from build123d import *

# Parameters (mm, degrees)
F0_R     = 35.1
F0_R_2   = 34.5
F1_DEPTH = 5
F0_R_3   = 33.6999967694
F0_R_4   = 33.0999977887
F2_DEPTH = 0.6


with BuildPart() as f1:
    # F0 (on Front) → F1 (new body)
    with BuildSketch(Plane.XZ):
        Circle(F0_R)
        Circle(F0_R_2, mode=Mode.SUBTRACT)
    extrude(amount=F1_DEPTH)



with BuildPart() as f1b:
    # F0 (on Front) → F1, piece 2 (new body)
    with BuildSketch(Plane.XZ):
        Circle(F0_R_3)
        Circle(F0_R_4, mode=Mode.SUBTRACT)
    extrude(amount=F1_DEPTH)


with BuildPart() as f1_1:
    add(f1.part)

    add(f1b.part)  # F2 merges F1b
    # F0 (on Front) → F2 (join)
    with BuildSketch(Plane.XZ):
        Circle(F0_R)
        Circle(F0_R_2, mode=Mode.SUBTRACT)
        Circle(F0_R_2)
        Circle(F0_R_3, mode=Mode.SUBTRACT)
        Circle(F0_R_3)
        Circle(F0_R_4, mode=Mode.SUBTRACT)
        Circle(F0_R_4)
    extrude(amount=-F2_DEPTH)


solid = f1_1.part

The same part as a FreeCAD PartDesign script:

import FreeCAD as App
import Part
import Sketcher

V = App.Vector
Q = App.Units.Quantity

doc = App.newDocument("Part")
body = doc.addObject("PartDesign::Body", "Body")

# Sketch on XZ plane
sketch1 = body.newObject("Sketcher::SketchObject", "Sketch")
sketch1.AttachmentSupport = (doc.getObject("XZ_Plane"), [""])
sketch1.MapMode = "FlatFace"
sketch1.addGeometry([
    Part.Circle(V(0, 0, 0), V(0, 0, 1), 35),
    Part.Circle(V(0, 0, 0), V(0, 0, 1), 34),
], False)
sketch1.addConstraint([
    Sketcher.Constraint("Coincident", 0, 3, -1, 1),
    Sketcher.Constraint("Coincident", 1, 3, -1, 1),
    Sketcher.Constraint("Diameter", 1, Q("69 mm")),
    Sketcher.Constraint("Diameter", 0, Q("70.2 mm")),
])
pad1 = body.newObject("PartDesign::Pad", "Pad")
pad1.Profile = sketch1
pad1.Length = 5
body2 = doc.addObject("PartDesign::Body", "Body001")

# Sketch on XZ plane
sketch2 = body2.newObject("Sketcher::SketchObject", "Sketch001")
sketch2.AttachmentSupport = (doc.getObject("XZ_Plane001"), [""])
sketch2.MapMode = "FlatFace"
sketch2.addGeometry([
    Part.Circle(V(0, 0, 0), V(0, 0, 1), 34),
    Part.Circle(V(0, 0, 0), V(0, 0, 1), 33),
], False)
sketch2.addConstraint([
    Sketcher.Constraint("Coincident", 0, 3, -1, 1),
    Sketcher.Constraint("Coincident", 1, 3, -1, 1),
    Sketcher.Constraint("Diameter", 0, Q("67.399994 mm")),
    Sketcher.Constraint("Diameter", 1, Q("66.199996 mm")),
])
pad2 = body2.newObject("PartDesign::Pad", "Pad001")
pad2.Profile = sketch2
pad2.Length = 5
body.AllowCompound = True
doc.recompute()

boolean = body.newObject("PartDesign::Boolean", "Boolean")
boolean.Type = "Fuse"
boolean.addObjects([body2])

# Sketch on XZ plane
sketch3 = body.newObject("Sketcher::SketchObject", "Sketch002")
sketch3.AttachmentSupport = (doc.getObject("XZ_Plane"), [""])
sketch3.MapMode = "FlatFace"
sketch3.addGeometry(Part.Circle(V(0, 0, 0), V(0, 0, 1), 35), False)
sketch3.addConstraint([
    Sketcher.Constraint("Coincident", 0, 3, -1, 1),
    Sketcher.Constraint("Diameter", 0, Q("70.2 mm")),
])
pad3 = body.newObject("PartDesign::Pad", "Pad002")
pad3.Profile = sketch3
pad3.Length = 0.6
pad3.Reversed = True

doc.recompute()
